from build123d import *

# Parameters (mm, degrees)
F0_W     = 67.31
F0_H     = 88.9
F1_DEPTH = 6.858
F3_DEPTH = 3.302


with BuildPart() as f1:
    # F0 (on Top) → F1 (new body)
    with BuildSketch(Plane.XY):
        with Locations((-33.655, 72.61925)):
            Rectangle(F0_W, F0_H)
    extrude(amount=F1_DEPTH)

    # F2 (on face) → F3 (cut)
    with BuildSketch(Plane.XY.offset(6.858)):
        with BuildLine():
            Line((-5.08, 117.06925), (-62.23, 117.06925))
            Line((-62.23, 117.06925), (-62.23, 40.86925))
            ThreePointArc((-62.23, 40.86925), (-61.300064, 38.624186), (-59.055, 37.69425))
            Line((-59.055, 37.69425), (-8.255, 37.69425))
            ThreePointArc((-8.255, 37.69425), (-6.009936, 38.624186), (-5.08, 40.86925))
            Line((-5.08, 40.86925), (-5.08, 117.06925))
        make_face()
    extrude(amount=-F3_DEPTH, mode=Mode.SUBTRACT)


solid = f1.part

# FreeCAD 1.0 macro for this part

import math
import FreeCAD as App
import Part
import Sketcher
Q = App.Units.Quantity


def add_polygon(sketch, points):
    """Adds a closed chain of lines whose ends are joined by coincident constraints."""
    first, n = sketch.GeometryCount, len(points)
    for a, b in zip(points, points[1:] + points[:1]):
        sketch.addGeometry(Part.LineSegment(App.Vector(*a, 0), App.Vector(*b, 0)), False)
    for i in range(n):
        sketch.addConstraint(Sketcher.Constraint("Coincident", first + i, 2, first + (i + 1) % n, 1))

doc = App.newDocument("Part")
body = doc.addObject("PartDesign::Body", "Body")

# Sketch on XY plane
sketch1 = body.newObject("Sketcher::SketchObject", "Sketch")
sketch1.AttachmentSupport = (doc.getObject("XY_Plane"), [""])
sketch1.MapMode = "FlatFace"
add_polygon(sketch1, [(-67.31, 117.06925), (-67.31, 28.16925), (0, 28.16925), (0, 117.06925)])  # lines 0-3
sketch1.addConstraint([
    Sketcher.Constraint("Vertical", 0),
    Sketcher.Constraint("Horizontal", 1),
    Sketcher.Constraint("Vertical", 2),
    Sketcher.Constraint("Horizontal", 3),
    Sketcher.Constraint("PointOnObject", 1, 2, -2),
    Sketcher.Constraint("DistanceY", 0, 2, 0, 1, Q("3.5 in")),
    Sketcher.Constraint("DistanceX", 1, 1, 1, 2, Q("2.65 in")),
    Sketcher.Constraint("DistanceY", -1, 1, 0, 2, Q("28.16925 mm")),
])
pad1 = body.newObject("PartDesign::Pad", "Pad")
pad1.Profile = sketch1
pad1.Length = Q("0.27 in")

# Sketch on XY plane
sketch2 = body.newObject("Sketcher::SketchObject", "Sketch001")
sketch2.AttachmentSupport = (doc.getObject("XY_Plane"), [""])
sketch2.MapMode = "FlatFace"
sketch2.AttachmentOffset = App.Placement(App.Vector(0, 0, 0.27 * 25.4), App.Rotation())
sketch2.addGeometry([
    Part.LineSegment(App.Vector(-5.08, 117.06925, 0), App.Vector(-62.23, 117.06925, 0)),  # 0
    Part.LineSegment(App.Vector(-62.23, 117.06925, 0), App.Vector(-62.23, 40.86925, 0)),  # 1
    Part.ArcOfCircle(Part.Circle(App.Vector(-59.055, 40.86925, 0), App.Vector(0, 0, 1), 3.175), math.radians(-179.999998), math.radians(-90.000002)),  # 2
    Part.LineSegment(App.Vector(-59.055, 37.69425, 0), App.Vector(-8.255, 37.69425, 0)),  # 3
    Part.ArcOfCircle(Part.Circle(App.Vector(-8.255, 40.86925, 0), App.Vector(0, 0, 1), 3.175), math.radians(-89.999998), math.radians(-0.000002)),  # 4
    Part.LineSegment(App.Vector(-5.08, 40.86925, 0), App.Vector(-5.08, 117.06925, 0)),  # 5
], False)
sketch2.addConstraint([
    Sketcher.Constraint("Coincident", 0, 2, 1, 1),
    Sketcher.Constraint("Tangent", 1, 2, 2, 1),
    Sketcher.Constraint("Tangent", 2, 2, 3, 1),
    Sketcher.Constraint("Tangent", 3, 2, 4, 1),
    Sketcher.Constraint("Tangent", 4, 2, 5, 1),
    Sketcher.Constraint("Coincident", 5, 2, 0, 1),
    Sketcher.Constraint("Horizontal", 0),
    Sketcher.Constraint("Vertical", 1),
    Sketcher.Constraint("Horizontal", 3),
    Sketcher.Constraint("Vertical", 5),
    Sketcher.Constraint("Equal", 2, 4),
    Sketcher.Constraint("DistanceX", 3, 1, 3, 2, Q("2 in")),
    Sketcher.Constraint("DistanceY", 1, 2, 1, 1, Q("3 in")),
    Sketcher.Constraint("Radius", 2, Q("0.125 in")),
    Sketcher.Constraint("DistanceX", 4, 2, -1, 1, Q("0.2 in")),
    Sketcher.Constraint("DistanceY", -1, 1, 2, 3, Q("40.86925 mm")),
])
pocket1 = body.newObject("PartDesign::Pocket", "Pocket")
pocket1.Profile = sketch2
pocket1.Length = Q("0.13 in")

doc.recompute()
